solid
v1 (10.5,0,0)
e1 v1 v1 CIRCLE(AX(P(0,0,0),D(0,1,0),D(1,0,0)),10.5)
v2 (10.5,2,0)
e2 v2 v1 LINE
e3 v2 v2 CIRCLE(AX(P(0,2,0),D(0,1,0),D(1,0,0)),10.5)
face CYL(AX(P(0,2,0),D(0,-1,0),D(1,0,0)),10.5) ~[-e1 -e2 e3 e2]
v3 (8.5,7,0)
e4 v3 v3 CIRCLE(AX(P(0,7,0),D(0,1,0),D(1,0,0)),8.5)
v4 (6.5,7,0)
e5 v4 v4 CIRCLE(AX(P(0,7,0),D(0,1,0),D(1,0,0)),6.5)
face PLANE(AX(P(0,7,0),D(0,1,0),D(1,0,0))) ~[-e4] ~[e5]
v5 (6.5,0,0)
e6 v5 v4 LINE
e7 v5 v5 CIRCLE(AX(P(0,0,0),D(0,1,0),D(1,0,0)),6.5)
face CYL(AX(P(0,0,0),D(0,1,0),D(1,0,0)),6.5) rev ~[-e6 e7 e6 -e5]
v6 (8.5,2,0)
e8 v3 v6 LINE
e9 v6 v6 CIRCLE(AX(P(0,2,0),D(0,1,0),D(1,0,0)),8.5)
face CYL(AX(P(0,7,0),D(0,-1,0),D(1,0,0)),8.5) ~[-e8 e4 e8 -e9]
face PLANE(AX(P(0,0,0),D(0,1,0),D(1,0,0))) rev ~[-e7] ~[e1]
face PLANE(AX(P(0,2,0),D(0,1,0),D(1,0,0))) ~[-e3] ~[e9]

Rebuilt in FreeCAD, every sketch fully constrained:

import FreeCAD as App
import Part
import Sketcher
from FreeCAD import Vector

doc = App.newDocument("Part")
params = doc.addObject("Spreadsheet::Sheet", "Params")
for row, (alias, value) in enumerate([
    ("sketch1_width", "4 mm"),
    ("sketch1_height", "5 mm"),
    ("revolution_angle", "360 deg"),
], start=1):
    params.set(f"A{row}", alias)
    params.set(f"B{row}", "=" + value)
    params.setAlias(f"B{row}", alias)

body = doc.addObject("PartDesign::Body", "Body")

# Sketch on XY plane
sketch1 = body.newObject("Sketcher::SketchObject", "Sketch")
sketch1.AttachmentSupport = (doc.getObject("XY_Plane"), [""])
sketch1.MapMode = "FlatFace"
sketch1.addGeometry([
    Part.LineSegment(Vector(6.5, 7, 0), Vector(6.5, 0, 0)),  # 0
    Part.LineSegment(Vector(6.5, 0, 0), Vector(10.5, 0, 0)),  # 1
    Part.LineSegment(Vector(10.5, 0, 0), Vector(10.5, 2, 0)),  # 2
    Part.LineSegment(Vector(10.5, 2, 0), Vector(8.5, 2, 0)),  # 3
    Part.LineSegment(Vector(8.5, 2, 0), Vector(8.5, 7, 0)),  # 4
    Part.LineSegment(Vector(8.5, 7, 0), Vector(6.5, 7, 0)),  # 5
], False)
sketch1.addConstraint([
    Sketcher.Constraint("Coincident", 0, 2, 1, 1),
    Sketcher.Constraint("Coincident", 1, 2, 2, 1),
    Sketcher.Constraint("Coincident", 2, 2, 3, 1),
    Sketcher.Constraint("Coincident", 3, 2, 4, 1),
    Sketcher.Constraint("Coincident", 4, 2, 5, 1),
    Sketcher.Constraint("Coincident", 5, 2, 0, 1),
    Sketcher.Constraint("Vertical", 0),
    Sketcher.Constraint("Horizontal", 1),
    Sketcher.Constraint("Vertical", 2),
    Sketcher.Constraint("Horizontal", 3),
    Sketcher.Constraint("Vertical", 4),
    Sketcher.Constraint("Horizontal", 5),
    Sketcher.Constraint("PointOnObject", 0, 2, -1),
    Sketcher.Constraint("Equal", 3, 5),
    Sketcher.Constraint("Equal", 5, 2),
    Sketcher.Constraint("DistanceX", 1, 1, 1, 2, 4.0),
    Sketcher.Constraint("DistanceY", 4, 1, 4, 2, 5.0),
    Sketcher.Constraint("DistanceX", -1, 1, 0, 2, 6.5),
])
sketch1.setExpression("Constraints[15]", "Params.sketch1_width")
sketch1.setExpression("Constraints[16]", "Params.sketch1_height")
revolution = body.newObject("PartDesign::Revolution", "Revolution")
revolution.Profile = sketch1
revolution.ReferenceAxis = (sketch1, ["V_Axis"])
revolution.setExpression("Angle", "Params.revolution_angle")

doc.recompute()
